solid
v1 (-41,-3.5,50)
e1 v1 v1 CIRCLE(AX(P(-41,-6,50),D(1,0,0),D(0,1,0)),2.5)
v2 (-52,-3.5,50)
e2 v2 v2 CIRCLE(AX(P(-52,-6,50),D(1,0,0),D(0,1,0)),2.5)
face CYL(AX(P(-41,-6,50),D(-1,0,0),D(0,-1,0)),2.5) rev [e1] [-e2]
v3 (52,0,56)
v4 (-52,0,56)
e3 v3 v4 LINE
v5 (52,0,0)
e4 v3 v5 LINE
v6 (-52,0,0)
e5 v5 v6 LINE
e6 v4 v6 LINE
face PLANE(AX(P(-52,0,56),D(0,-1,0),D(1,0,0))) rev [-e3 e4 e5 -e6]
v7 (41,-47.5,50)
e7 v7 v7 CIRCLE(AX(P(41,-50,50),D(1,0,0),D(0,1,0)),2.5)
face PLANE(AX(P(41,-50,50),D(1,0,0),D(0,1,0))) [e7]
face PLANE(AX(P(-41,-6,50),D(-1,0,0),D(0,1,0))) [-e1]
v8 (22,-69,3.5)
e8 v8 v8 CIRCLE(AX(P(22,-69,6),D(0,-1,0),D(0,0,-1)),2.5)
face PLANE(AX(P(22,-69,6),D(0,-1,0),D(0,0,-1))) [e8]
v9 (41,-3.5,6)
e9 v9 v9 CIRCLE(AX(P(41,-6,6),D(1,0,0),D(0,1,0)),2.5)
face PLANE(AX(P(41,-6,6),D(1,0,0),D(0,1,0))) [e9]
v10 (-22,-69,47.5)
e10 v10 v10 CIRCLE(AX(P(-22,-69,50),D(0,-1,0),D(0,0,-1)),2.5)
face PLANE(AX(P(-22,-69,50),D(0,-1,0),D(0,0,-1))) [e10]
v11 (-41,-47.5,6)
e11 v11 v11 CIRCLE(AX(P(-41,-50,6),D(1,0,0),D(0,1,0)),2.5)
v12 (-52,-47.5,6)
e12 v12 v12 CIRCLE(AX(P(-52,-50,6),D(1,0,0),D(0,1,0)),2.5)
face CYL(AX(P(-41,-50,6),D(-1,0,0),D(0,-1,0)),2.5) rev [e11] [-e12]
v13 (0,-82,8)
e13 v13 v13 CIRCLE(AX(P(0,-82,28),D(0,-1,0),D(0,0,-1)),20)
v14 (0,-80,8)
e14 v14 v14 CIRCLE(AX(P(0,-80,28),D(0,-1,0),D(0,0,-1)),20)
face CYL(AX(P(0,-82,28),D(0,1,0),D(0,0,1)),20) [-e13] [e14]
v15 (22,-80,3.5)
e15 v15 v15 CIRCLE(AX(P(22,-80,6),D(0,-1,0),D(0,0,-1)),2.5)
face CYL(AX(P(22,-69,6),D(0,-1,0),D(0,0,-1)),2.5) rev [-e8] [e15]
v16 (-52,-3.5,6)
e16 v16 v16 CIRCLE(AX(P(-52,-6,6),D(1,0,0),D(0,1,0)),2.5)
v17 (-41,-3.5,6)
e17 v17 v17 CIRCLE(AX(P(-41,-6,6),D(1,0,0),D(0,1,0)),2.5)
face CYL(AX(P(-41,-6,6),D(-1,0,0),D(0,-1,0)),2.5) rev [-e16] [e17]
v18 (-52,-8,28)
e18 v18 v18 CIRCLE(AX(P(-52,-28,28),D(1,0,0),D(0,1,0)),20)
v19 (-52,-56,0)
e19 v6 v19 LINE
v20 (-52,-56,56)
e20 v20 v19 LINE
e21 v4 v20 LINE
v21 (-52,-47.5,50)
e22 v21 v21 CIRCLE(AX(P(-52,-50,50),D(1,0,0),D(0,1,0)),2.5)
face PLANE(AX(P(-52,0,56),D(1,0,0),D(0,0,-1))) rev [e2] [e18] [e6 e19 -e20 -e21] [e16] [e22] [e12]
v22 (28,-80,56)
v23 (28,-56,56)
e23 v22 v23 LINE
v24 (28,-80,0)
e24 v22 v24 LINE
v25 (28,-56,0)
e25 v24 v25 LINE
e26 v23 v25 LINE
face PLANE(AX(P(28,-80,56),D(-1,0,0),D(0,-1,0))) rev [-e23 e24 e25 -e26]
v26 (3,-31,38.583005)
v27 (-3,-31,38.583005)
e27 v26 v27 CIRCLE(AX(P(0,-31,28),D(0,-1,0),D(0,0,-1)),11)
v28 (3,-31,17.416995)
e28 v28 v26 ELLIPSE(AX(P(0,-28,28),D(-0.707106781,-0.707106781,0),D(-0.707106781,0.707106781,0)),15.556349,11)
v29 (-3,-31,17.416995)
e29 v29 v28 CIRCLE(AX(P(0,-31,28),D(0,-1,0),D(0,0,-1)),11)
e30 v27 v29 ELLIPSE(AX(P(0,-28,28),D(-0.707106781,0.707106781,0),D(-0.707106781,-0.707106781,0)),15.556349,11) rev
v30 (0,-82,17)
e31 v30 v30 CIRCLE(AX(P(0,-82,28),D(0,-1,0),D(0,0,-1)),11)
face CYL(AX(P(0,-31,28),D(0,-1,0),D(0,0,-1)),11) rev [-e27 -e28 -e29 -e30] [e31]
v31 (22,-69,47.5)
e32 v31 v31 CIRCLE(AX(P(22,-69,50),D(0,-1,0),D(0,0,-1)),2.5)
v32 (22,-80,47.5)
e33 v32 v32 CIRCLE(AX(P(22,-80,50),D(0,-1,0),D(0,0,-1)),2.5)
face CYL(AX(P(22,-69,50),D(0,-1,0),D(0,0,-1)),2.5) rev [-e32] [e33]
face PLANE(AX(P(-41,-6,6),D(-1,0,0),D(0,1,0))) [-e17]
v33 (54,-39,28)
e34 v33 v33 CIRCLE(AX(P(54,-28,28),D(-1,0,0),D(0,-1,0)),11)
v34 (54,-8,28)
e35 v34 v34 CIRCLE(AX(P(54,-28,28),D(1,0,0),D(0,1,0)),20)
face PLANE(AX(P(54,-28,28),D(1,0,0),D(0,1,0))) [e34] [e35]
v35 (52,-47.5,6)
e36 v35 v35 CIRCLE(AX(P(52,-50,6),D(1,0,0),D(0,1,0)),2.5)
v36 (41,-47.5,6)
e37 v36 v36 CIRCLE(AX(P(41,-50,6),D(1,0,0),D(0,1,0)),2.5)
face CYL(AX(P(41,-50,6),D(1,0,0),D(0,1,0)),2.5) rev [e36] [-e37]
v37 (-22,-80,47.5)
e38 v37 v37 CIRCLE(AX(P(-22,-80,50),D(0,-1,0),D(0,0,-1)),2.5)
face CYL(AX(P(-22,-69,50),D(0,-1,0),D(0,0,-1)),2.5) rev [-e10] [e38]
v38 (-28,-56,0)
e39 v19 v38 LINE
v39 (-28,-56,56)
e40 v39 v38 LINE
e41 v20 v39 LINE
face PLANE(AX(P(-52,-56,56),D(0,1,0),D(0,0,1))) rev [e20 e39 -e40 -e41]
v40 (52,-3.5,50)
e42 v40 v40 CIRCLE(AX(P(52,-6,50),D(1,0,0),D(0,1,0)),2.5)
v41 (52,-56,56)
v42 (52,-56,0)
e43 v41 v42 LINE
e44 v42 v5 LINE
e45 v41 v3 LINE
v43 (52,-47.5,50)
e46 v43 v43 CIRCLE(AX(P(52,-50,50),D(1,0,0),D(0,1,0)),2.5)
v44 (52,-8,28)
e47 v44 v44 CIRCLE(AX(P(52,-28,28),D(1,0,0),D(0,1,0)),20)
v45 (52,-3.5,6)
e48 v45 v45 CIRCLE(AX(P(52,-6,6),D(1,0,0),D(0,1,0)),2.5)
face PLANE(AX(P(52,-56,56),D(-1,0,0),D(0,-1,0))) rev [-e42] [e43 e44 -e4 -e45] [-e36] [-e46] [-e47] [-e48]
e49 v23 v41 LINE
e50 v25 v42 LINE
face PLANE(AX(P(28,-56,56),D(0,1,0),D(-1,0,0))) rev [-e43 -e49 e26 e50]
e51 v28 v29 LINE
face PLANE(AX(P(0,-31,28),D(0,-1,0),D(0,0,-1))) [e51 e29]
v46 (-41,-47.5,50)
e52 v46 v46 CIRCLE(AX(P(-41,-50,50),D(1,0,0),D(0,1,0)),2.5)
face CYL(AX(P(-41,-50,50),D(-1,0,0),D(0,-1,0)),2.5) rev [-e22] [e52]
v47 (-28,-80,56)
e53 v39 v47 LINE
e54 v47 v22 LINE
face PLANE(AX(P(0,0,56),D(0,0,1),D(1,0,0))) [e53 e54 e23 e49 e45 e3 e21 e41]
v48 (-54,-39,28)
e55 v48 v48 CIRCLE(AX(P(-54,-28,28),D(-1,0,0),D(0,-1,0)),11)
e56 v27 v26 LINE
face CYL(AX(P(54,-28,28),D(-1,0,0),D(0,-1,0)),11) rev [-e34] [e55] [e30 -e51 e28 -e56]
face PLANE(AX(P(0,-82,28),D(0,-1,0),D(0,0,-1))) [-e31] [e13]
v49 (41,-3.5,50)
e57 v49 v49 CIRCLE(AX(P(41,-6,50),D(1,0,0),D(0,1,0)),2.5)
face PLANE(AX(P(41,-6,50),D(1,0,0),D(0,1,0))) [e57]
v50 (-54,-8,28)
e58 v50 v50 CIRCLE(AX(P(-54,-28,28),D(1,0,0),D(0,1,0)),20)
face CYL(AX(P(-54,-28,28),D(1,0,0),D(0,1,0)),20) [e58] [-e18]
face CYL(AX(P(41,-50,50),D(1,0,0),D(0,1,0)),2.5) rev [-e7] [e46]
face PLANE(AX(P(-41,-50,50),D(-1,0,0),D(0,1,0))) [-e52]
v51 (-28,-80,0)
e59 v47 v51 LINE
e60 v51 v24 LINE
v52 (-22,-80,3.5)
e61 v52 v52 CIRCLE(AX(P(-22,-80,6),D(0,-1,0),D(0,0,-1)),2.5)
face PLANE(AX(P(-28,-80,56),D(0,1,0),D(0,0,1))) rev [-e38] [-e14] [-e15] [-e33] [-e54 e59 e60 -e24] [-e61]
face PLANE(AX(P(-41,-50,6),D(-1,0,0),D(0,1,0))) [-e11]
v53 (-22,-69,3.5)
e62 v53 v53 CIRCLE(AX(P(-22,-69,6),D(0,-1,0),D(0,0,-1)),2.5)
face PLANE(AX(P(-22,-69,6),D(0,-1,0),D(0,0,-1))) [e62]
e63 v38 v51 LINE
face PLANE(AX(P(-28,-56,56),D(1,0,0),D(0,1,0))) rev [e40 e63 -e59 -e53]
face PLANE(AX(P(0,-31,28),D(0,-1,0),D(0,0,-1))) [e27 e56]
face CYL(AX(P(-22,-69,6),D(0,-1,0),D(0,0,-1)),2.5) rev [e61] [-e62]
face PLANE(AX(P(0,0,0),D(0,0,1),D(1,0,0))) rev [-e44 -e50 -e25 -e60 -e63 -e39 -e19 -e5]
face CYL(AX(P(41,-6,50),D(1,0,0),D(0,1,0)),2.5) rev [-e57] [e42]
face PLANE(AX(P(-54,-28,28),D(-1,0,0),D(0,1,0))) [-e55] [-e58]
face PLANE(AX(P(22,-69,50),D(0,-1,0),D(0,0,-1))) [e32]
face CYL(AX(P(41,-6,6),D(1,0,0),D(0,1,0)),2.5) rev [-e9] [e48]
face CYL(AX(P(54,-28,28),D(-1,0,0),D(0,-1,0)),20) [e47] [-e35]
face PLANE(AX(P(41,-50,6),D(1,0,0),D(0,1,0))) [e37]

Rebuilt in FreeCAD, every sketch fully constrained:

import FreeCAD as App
import Part
import Sketcher

V = App.Vector
Q = App.Units.Quantity

doc = App.newDocument("Part")
params = doc.addObject("Spreadsheet::Sheet", "Params")
for row, (alias, value) in enumerate([
    ("sketch1_width", "104 mm"),
    ("sketch1_width2", "24 mm"),
    ("pad1_length", "56 mm"),
    ("sketch2_diameter", "40 mm"),
    ("pad2_length", "2 mm"),
    ("sketch3_diameter", "40 mm"),
    ("pad3_length", "2 mm"),
    ("sketch4_diameter", "5 mm"),
    ("pocket1_length", "11 mm"),
    ("sketch5_diameter", "5 mm"),
    ("pocket2_length", "11 mm"),
    ("sketch6_diameter", "22 mm"),
    ("sketch7_diameter", "22 mm"),
    ("pocket4_length", "51 mm"),
], start=1):
    params.set(f"A{row}", alias)
    params.set(f"B{row}", "=" + value)
    params.setAlias(f"B{row}", alias)

body = doc.addObject("PartDesign::Body", "Body")

# Sketch on XY plane
sketch1 = body.newObject("Sketcher::SketchObject", "Sketch")
sketch1.AttachmentSupport = (doc.getObject("XY_Plane"), [""])
sketch1.MapMode = "FlatFace"
sketch1.addGeometry([
    Part.LineSegment(V(52, 0, 0), V(-52, 0, 0)),  # 0
    Part.LineSegment(V(-52, 0, 0), V(-52, -56, 0)),  # 1
    Part.LineSegment(V(-52, -56, 0), V(-28, -56, 0)),  # 2
    Part.LineSegment(V(-28, -56, 0), V(-28, -80, 0)),  # 3
    Part.LineSegment(V(-28, -80, 0), V(28, -80, 0)),  # 4
    Part.LineSegment(V(28, -80, 0), V(28, -56, 0)),  # 5
    Part.LineSegment(V(28, -56, 0), V(52, -56, 0)),  # 6
    Part.LineSegment(V(52, -56, 0), V(52, 0, 0)),  # 7
], False)
sketch1.addConstraint([
    Sketcher.Constraint("Coincident", 0, 2, 1, 1),
    Sketcher.Constraint("Coincident", 1, 2, 2, 1),
    Sketcher.Constraint("Coincident", 2, 2, 3, 1),
    Sketcher.Constraint("Coincident", 3, 2, 4, 1),
    Sketcher.Constraint("Coincident", 4, 2, 5, 1),
    Sketcher.Constraint("Coincident", 5, 2, 6, 1),
    Sketcher.Constraint("Coincident", 6, 2, 7, 1),
    Sketcher.Constraint("Coincident", 7, 2, 0, 1),
    Sketcher.Constraint("Horizontal", 0),
    Sketcher.Constraint("Vertical", 1),
    Sketcher.Constraint("Horizontal", 2),
    Sketcher.Constraint("Vertical", 3),
    Sketcher.Constraint("Horizontal", 4),
    Sketcher.Constraint("Vertical", 5),
    Sketcher.Constraint("Horizontal", 6),
    Sketcher.Constraint("Vertical", 7),
    Sketcher.Constraint("Symmetric", 0, 2, 7, 2, -1, 1),
    Sketcher.Constraint("Symmetric", 2, 2, 5, 2, -2),
    Sketcher.Constraint("Equal", 4, 1),
    Sketcher.Constraint("Equal", 6, 3),
    Sketcher.Constraint("DistanceX", 0, 2, 0, 1, Q("104 mm")),
    Sketcher.Constraint("DistanceX", 2, 1, 2, 2, Q("24 mm")),
])
sketch1.setExpression("Constraints[20]", "Params.sketch1_width")
sketch1.setExpression("Constraints[21]", "Params.sketch1_width2")
pad1 = body.newObject("PartDesign::Pad", "Pad")
pad1.Profile = sketch1
pad1.setExpression("Length", "Params.pad1_length")

# Sketch on YZ plane
sketch2 = body.newObject("Sketcher::SketchObject", "Sketch001")
sketch2.AttachmentSupport = (doc.getObject("YZ_Plane"), [""])
sketch2.MapMode = "FlatFace"
sketch2.AttachmentOffset = App.Placement(V(0, 0, 52), App.Rotation())
sketch2.addGeometry(Part.Circle(V(-28, 28, 0), V(0, 0, 1), 20), False)
sketch2.addConstraint([
    Sketcher.Constraint("Diameter", 0, Q("40 mm")),
    Sketcher.Constraint("DistanceX", 0, 3, -1, 1, Q("28 mm")),
    Sketcher.Constraint("DistanceY", -1, 1, 0, 3, Q("28 mm")),
])
sketch2.setExpression("Constraints[0]", "Params.sketch2_diameter")
pad2 = body.newObject("PartDesign::Pad", "Pad001")
pad2.Profile = sketch2
pad2.setExpression("Length", "Params.pad2_length")
doc.recompute()

mirrored = body.newObject("PartDesign::Mirrored", "Mirrored")
mirrored.Originals = [pad2]
mirrored.MirrorPlane = (doc.getObject("YZ_Plane"), [""])
body.Tip = mirrored

# Sketch on XZ plane
sketch3 = body.newObject("Sketcher::SketchObject", "Sketch002")
sketch3.AttachmentSupport = (doc.getObject("XZ_Plane"), [""])
sketch3.MapMode = "FlatFace"
sketch3.AttachmentOffset = App.Placement(V(0, 0, 80), App.Rotation())
sketch3.addGeometry(Part.Circle(V(0, 28, 0), V(0, 0, 1), 20), False)
sketch3.addConstraint([
    Sketcher.Constraint("PointOnObject", 0, 3, -2),
    Sketcher.Constraint("Diameter", 0, Q("40 mm")),
    Sketcher.Constraint("DistanceY", -1, 1, 0, 3, Q("28 mm")),
])
sketch3.setExpression("Constraints[1]", "Params.sketch3_diameter")
pad3 = body.newObject("PartDesign::Pad", "Pad002")
pad3.Profile = sketch3
pad3.setExpression("Length", "Params.pad3_length")

# Sketch on YZ plane
sketch4 = body.newObject("Sketcher::SketchObject", "Sketch003")
sketch4.AttachmentSupport = (doc.getObject("YZ_Plane"), [""])
sketch4.MapMode = "FlatFace"
sketch4.AttachmentOffset = App.Placement(V(0, 0, 52), App.Rotation())
sketch4.addGeometry([
    Part.Circle(V(-6, 50, 0), V(0, 0, 1), 2.5),
    Part.Circle(V(-50, 50, 0), V(0, 0, 1), 2.5),
    Part.Circle(V(-50, 6, 0), V(0, 0, 1), 2.5),
    Part.Circle(V(-6, 6, 0), V(0, 0, 1), 2.5),
], False)
sketch4.addConstraint([
    Sketcher.Constraint("Equal", 0, 1),
    Sketcher.Constraint("Equal", 1, 2),
    Sketcher.Constraint("Equal", 2, 3),
    Sketcher.Constraint("Horizontal", 0, 3, 1, 3),
    Sketcher.Constraint("Horizontal", 2, 3, 3, 3),
    Sketcher.Constraint("Vertical", 1, 3, 2, 3),
    Sketcher.Constraint("Vertical", 0, 3, 3, 3),
    Sketcher.Constraint("Diameter", 0, Q("5 mm")),
    Sketcher.Constraint("DistanceX", 0, 3, -1, 1, Q("6 mm")),
    Sketcher.Constraint("DistanceY", -1, 1, 0, 3, Q("50 mm")),
    Sketcher.Constraint("DistanceX", 1, 3, -1, 1, Q("50 mm")),
    Sketcher.Constraint("DistanceY", -1, 1, 2, 3, Q("6 mm")),
])
sketch4.setExpression("Constraints[7]", "Params.sketch4_diameter")
pocket1 = body.newObject("PartDesign::Pocket", "Pocket")
pocket1.Profile = sketch4
pocket1.setExpression("Length", "Params.pocket1_length")
doc.recompute()

mirrored2 = body.newObject("PartDesign::Mirrored", "Mirrored001")
mirrored2.Originals = [pocket1]
mirrored2.MirrorPlane = (doc.getObject("YZ_Plane"), [""])
body.Tip = mirrored2

# Sketch on XZ plane
sketch5 = body.newObject("Sketcher::SketchObject", "Sketch004")
sketch5.AttachmentSupport = (doc.getObject("XZ_Plane"), [""])
sketch5.MapMode = "FlatFace"
sketch5.AttachmentOffset = App.Placement(V(0, 0, 80), App.Rotation())
sketch5.addGeometry([
    Part.Circle(V(-22, 50, 0), V(0, 0, 1), 2.5),
    Part.Circle(V(22, 50, 0), V(0, 0, 1), 2.5),
    Part.Circle(V(22, 6, 0), V(0, 0, 1), 2.5),
    Part.Circle(V(-22, 6, 0), V(0, 0, 1), 2.5),
], False)
sketch5.addConstraint([
    Sketcher.Constraint("Equal", 0, 1),
    Sketcher.Constraint("Equal", 1, 2),
    Sketcher.Constraint("Equal", 2, 3),
    Sketcher.Constraint("Symmetric", 0, 3, 1, 3, -2),
    Sketcher.Constraint("Symmetric", 2, 3, 3, 3, -2),
    Sketcher.Constraint("Vertical", 1, 3, 2, 3),
    Sketcher.Constraint("Diameter", 0, Q("5 mm")),
    Sketcher.Constraint("DistanceX", 0, 3, -1, 1, Q("22 mm")),
    Sketcher.Constraint("DistanceY", -1, 1, 0, 3, Q("50 mm")),
    Sketcher.Constraint("DistanceY", -1, 1, 2, 3, Q("6 mm")),
])
sketch5.setExpression("Constraints[6]", "Params.sketch5_diameter")
pocket2 = body.newObject("PartDesign::Pocket", "Pocket001")
pocket2.Profile = sketch5
pocket2.setExpression("Length", "Params.pocket2_length")

# Sketch on YZ plane
sketch6 = body.newObject("Sketcher::SketchObject", "Sketch005")
sketch6.AttachmentSupport = (doc.getObject("YZ_Plane"), [""])
sketch6.MapMode = "FlatFace"
sketch6.AttachmentOffset = App.Placement(V(0, 0, -54), App.Rotation())
sketch6.addGeometry(Part.Circle(V(-28, 28, 0), V(0, 0, 1), 11), False)
sketch6.addConstraint([
    Sketcher.Constraint("Diameter", 0, Q("22 mm")),
    Sketcher.Constraint("DistanceX", 0, 3, -1, 1, Q("28 mm")),
    Sketcher.Constraint("DistanceY", -1, 1, 0, 3, Q("28 mm")),
])
sketch6.setExpression("Constraints[0]", "Params.sketch6_diameter")
pocket3 = body.newObject("PartDesign::Pocket", "Pocket002")
pocket3.Profile = sketch6
pocket3.Type = "ThroughAll"
pocket3.Midplane = True

# Sketch on XZ plane
sketch7 = body.newObject("Sketcher::SketchObject", "Sketch006")
sketch7.AttachmentSupport = (doc.getObject("XZ_Plane"), [""])
sketch7.MapMode = "FlatFace"
sketch7.AttachmentOffset = App.Placement(V(0, 0, 82), App.Rotation())
sketch7.addGeometry(Part.Circle(V(0, 28, 0), V(0, 0, 1), 11), False)
sketch7.addConstraint([
    Sketcher.Constraint("PointOnObject", 0, 3, -2),
    Sketcher.Constraint("Diameter", 0, Q("22 mm")),
    Sketcher.Constraint("DistanceY", -1, 1, 0, 3, Q("28 mm")),
])
sketch7.setExpression("Constraints[1]", "Params.sketch7_diameter")
pocket4 = body.newObject("PartDesign::Pocket", "Pocket003")
pocket4.Profile = sketch7
pocket4.setExpression("Length", "Params.pocket4_length")

doc.recompute()
